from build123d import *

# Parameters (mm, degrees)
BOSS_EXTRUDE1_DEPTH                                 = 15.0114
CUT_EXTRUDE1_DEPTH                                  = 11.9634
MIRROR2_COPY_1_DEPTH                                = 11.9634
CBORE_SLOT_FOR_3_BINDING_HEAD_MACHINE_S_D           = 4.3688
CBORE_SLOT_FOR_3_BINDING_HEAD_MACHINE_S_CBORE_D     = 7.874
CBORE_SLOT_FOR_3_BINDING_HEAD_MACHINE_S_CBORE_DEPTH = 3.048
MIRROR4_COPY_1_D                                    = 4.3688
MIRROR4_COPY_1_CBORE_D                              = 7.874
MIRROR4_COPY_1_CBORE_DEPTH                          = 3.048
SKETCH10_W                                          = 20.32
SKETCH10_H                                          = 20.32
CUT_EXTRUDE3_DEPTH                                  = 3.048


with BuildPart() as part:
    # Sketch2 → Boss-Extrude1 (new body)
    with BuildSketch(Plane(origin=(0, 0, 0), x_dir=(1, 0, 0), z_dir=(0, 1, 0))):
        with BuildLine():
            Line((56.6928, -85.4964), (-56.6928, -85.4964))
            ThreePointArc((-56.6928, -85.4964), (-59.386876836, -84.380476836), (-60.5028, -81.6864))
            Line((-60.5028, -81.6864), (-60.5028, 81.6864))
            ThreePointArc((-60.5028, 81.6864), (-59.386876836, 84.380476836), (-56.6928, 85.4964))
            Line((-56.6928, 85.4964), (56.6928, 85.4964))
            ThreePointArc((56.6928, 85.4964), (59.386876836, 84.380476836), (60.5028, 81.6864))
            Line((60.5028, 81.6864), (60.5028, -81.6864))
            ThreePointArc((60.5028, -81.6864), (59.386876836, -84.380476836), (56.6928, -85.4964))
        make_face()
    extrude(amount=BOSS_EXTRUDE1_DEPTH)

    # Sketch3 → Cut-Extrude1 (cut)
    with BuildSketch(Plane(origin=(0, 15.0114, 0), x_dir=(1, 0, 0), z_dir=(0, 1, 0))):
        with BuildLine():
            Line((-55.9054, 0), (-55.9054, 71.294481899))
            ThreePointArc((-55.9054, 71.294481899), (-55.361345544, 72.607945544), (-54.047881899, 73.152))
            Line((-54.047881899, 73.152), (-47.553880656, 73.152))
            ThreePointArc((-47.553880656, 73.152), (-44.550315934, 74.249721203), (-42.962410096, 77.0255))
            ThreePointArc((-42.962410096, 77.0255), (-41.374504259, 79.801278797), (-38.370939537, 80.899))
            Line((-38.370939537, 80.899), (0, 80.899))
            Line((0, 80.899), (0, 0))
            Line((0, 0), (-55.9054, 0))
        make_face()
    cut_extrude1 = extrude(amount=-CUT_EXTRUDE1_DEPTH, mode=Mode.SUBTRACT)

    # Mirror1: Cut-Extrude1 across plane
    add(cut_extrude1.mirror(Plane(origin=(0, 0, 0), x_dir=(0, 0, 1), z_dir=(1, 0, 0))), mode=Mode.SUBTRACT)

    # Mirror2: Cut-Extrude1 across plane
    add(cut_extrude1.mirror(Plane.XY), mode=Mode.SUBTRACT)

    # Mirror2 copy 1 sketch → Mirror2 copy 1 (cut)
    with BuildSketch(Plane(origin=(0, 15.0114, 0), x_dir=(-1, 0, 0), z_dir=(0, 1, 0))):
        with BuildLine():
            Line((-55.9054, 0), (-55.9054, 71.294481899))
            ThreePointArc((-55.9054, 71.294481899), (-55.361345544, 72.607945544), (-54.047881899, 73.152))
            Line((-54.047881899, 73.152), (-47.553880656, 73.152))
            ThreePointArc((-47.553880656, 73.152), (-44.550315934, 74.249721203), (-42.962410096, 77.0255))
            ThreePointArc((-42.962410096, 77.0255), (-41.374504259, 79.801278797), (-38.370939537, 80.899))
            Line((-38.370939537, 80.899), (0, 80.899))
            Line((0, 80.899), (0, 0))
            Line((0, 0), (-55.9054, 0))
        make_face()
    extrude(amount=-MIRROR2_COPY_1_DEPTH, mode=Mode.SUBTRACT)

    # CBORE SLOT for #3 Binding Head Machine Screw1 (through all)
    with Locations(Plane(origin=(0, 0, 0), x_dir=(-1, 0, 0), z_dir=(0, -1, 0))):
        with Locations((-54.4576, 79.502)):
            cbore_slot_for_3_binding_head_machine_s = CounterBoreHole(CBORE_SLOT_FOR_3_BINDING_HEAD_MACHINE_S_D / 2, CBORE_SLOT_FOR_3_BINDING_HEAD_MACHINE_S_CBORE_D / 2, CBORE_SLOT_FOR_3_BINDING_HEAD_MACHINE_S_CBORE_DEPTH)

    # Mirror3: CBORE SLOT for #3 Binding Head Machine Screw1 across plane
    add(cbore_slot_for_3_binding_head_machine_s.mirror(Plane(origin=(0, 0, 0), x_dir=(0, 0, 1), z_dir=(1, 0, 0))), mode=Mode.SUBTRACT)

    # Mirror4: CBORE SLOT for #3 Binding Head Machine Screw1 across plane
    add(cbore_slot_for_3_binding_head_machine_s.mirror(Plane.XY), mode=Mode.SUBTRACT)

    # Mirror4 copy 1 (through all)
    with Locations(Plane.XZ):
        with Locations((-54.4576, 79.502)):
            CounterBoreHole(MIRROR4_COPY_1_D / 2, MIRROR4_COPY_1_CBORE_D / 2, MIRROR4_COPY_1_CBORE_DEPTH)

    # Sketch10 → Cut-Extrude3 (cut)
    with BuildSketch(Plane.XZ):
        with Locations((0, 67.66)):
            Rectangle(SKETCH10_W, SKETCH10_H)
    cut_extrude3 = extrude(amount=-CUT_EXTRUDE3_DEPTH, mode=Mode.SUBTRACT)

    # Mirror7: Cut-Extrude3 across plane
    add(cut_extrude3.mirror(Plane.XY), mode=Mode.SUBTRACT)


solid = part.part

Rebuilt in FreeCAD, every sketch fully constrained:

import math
import FreeCAD as App
import Part
import Sketcher
Q = App.Units.Quantity


def add_polygon(sketch, points):
    """Adds a closed chain of lines whose ends are joined by coincident constraints."""
    first, n = sketch.GeometryCount, len(points)
    for a, b in zip(points, points[1:] + points[:1]):
        sketch.addGeometry(Part.LineSegment(App.Vector(*a, 0), App.Vector(*b, 0)), False)
    for i in range(n):
        sketch.addConstraint(Sketcher.Constraint("Coincident", first + i, 2, first + (i + 1) % n, 1))

doc = App.newDocument("Part")
params = doc.addObject("Spreadsheet::Sheet", "Params")
for row, (alias, value) in enumerate([
    ("sketch1_radius", "0.15 in"),
    ("sketch1_width", "4.464 in"),
    ("sketch1_height", "6.432 in"),
    ("pad1_length", "0.591 in"),
    ("sketch2_width", "2.201 in"),
    ("sketch2_height", "3.185 in"),
    ("pocket1_length", "0.471 in"),
    ("sketch3_width", "2.201 in"),
    ("sketch3_height", "3.185 in"),
    ("pocket2_length", "0.471 in"),
    ("sketch4_diameter", "0.172 in"),
    ("hole_diameter", "0.172 in"),
    ("hole_cbore_diameter", "0.31 in"),
    ("hole_cbore_depth", "0.12 in"),
    ("sketch5_diameter", "0.172 in"),
    ("hole2_diameter", "0.172 in"),
    ("hole2_cbore_diameter", "0.31 in"),
    ("hole2_cbore_depth", "0.12 in"),
    ("sketch6_width", "0.8 in"),
    ("pocket3_length", "0.12 in"),
], start=1):
    params.set(f"A{row}", alias)
    params.set(f"B{row}", "=" + value)
    params.setAlias(f"B{row}", alias)

body = doc.addObject("PartDesign::Body", "Body")

# Sketch on XZ plane
sketch1 = body.newObject("Sketcher::SketchObject", "Sketch")
sketch1.AttachmentSupport = (doc.getObject("XZ_Plane"), [""])
sketch1.MapMode = "FlatFace"
sketch1.addGeometry([
    Part.LineSegment(App.Vector(-56.7, 85.5, 0), App.Vector(56.7, 85.5, 0)),  # 0
    Part.ArcOfCircle(Part.Circle(App.Vector(56.7, 81.7, 0), App.Vector(0, 0, 1), 3.8), math.radians(0), math.radians(90)),  # 1
    Part.LineSegment(App.Vector(60.5, 81.7, 0), App.Vector(60.5, -81.7, 0)),  # 2
    Part.ArcOfCircle(Part.Circle(App.Vector(56.7, -81.7, 0), App.Vector(0, 0, 1), 3.8), math.radians(-90), math.radians(0)),  # 3
    Part.LineSegment(App.Vector(56.7, -85.5, 0), App.Vector(-56.7, -85.5, 0)),  # 4
    Part.ArcOfCircle(Part.Circle(App.Vector(-56.7, -81.7, 0), App.Vector(0, 0, 1), 3.8), math.radians(-180), math.radians(-90)),  # 5
    Part.LineSegment(App.Vector(-60.5, -81.7, 0), App.Vector(-60.5, 81.7, 0)),  # 6
    Part.ArcOfCircle(Part.Circle(App.Vector(-56.7, 81.7, 0), App.Vector(0, 0, 1), 3.8), math.radians(90), math.radians(180)),  # 7
], False)
sketch1.addConstraint([
    Sketcher.Constraint("Tangent", 0, 2, 1, 2),
    Sketcher.Constraint("Tangent", 1, 1, 2, 1),
    Sketcher.Constraint("Tangent", 2, 2, 3, 2),
    Sketcher.Constraint("Tangent", 3, 1, 4, 1),
    Sketcher.Constraint("Tangent", 4, 2, 5, 2),
    Sketcher.Constraint("Tangent", 5, 1, 6, 1),
    Sketcher.Constraint("Tangent", 6, 2, 7, 2),
    Sketcher.Constraint("Tangent", 7, 1, 0, 1),
    Sketcher.Constraint("Horizontal", 0),
    Sketcher.Constraint("Vertical", 2),
    Sketcher.Constraint("Horizontal", 4),
    Sketcher.Constraint("Vertical", 6),
    Sketcher.Constraint("Equal", 1, 3),
    Sketcher.Constraint("Equal", 3, 5),
    Sketcher.Constraint("Equal", 5, 7),
    Sketcher.Constraint("Symmetric", 1, 3, 5, 3, -1, 1),
    Sketcher.Constraint("Radius", 1, Q("0.15 in")),
    Sketcher.Constraint("DistanceX", 0, 1, 0, 2, Q("4.464 in")),
    Sketcher.Constraint("DistanceY", 2, 2, 2, 1, Q("6.432 in")),
])
sketch1.setExpression("Constraints[16]", "Params.sketch1_radius")
sketch1.setExpression("Constraints[17]", "Params.sketch1_width")
sketch1.setExpression("Constraints[18]", "Params.sketch1_height")
pad1 = body.newObject("PartDesign::Pad", "Pad")
pad1.Profile = sketch1
pad1.setExpression("Length", "Params.pad1_length")
pad1.Reversed = True

# Sketch on XZ plane
sketch2 = body.newObject("Sketcher::SketchObject", "Sketch001")
sketch2.AttachmentSupport = (doc.getObject("XZ_Plane"), [""])
sketch2.MapMode = "FlatFace"
sketch2.AttachmentOffset = App.Placement(App.Vector(0, 0, -0.591 * 25.4), App.Rotation())
sketch2.addGeometry([
    Part.LineSegment(App.Vector(-55.9, -71.3, 0), App.Vector(-55.9, 0, 0)),  # 0
    Part.LineSegment(App.Vector(-55.9, 0, 0), App.Vector(0, 0, 0)),  # 1
    Part.LineSegment(App.Vector(0, 0, 0), App.Vector(0, -80.9, 0)),  # 2
    Part.LineSegment(App.Vector(0, -80.9, 0), App.Vector(-38.4, -80.9, 0)),  # 3
    Part.ArcOfCircle(Part.Circle(App.Vector(-38.4, -76.2, 0), App.Vector(0, 0, 1), 4.7), math.radians(-170), math.radians(-90)),  # 4
    Part.ArcOfCircle(Part.Circle(App.Vector(-47.6, -77.8, 0), App.Vector(0, 0, 1), 4.7), math.radians(10), math.radians(90)),  # 5
    Part.LineSegment(App.Vector(-47.6, -73.2, 0), App.Vector(-54, -73.2, 0)),  # 6
    Part.ArcOfCircle(Part.Circle(App.Vector(-54, -71.3, 0), App.Vector(0, 0, 1), 1.9), math.radians(-180), math.radians(-90)),  # 7
], False)
sketch2.addConstraint([
    Sketcher.Constraint("Coincident", 0, 2, 1, 1),
    Sketcher.Constraint("Coincident", 1, 2, 2, 1),
    Sketcher.Constraint("Coincident", 2, 2, 3, 1),
    Sketcher.Constraint("Tangent", 3, 2, 4, 2),
    Sketcher.Constraint("Tangent", 4, 1, 5, 1),
    Sketcher.Constraint("Tangent", 5, 2, 6, 1),
    Sketcher.Constraint("Tangent", 6, 2, 7, 2),
    Sketcher.Constraint("Tangent", 7, 1, 0, 1),
    Sketcher.Constraint("Vertical", 0),
    Sketcher.Constraint("Horizontal", 1),
    Sketcher.Constraint("Vertical", 2),
    Sketcher.Constraint("Horizontal", 3),
    Sketcher.Constraint("Horizontal", 6),
    Sketcher.Constraint("Coincident", 1, 2, -1, 1),
    Sketcher.Constraint("Equal", 4, 5),
    Sketcher.Constraint("DistanceX", 1, 1, 1, 2, Q("2.201 in")),
    Sketcher.Constraint("DistanceY", 2, 2, 2, 1, Q("3.185 in")),
    Sketcher.Constraint("DistanceY", 5, 2, -1, 1, Q("2.88 in")),
    Sketcher.Constraint("Radius", 4, 4.65801),
    Sketcher.Constraint("Radius", 7, 1.857518),
    Sketcher.Constraint("DistanceX", 6, 2, 6, 1, 6.494001),
])
sketch2.setExpression("Constraints[15]", "Params.sketch2_width")
sketch2.setExpression("Constraints[16]", "Params.sketch2_height")
pocket1 = body.newObject("PartDesign::Pocket", "Pocket")
pocket1.Profile = sketch2
pocket1.setExpression("Length", "Params.pocket1_length")
pocket1.Reversed = True
doc.recompute()

mirrored = body.newObject("PartDesign::Mirrored", "Mirrored")
mirrored.Originals = [pocket1]
mirrored.MirrorPlane = (doc.getObject("YZ_Plane"), [""])
body.Tip = mirrored
doc.recompute()

mirrored2 = body.newObject("PartDesign::Mirrored", "Mirrored001")
mirrored2.Originals = [pocket1]
mirrored2.MirrorPlane = (doc.getObject("XY_Plane"), [""])
body.Tip = mirrored2

# Sketch on XZ plane
sketch3 = body.newObject("Sketcher::SketchObject", "Sketch002")
sketch3.AttachmentSupport = (doc.getObject("XZ_Plane"), [""])
sketch3.MapMode = "FlatFace"
sketch3.AttachmentOffset = App.Placement(App.Vector(0, 0, -0.591 * 25.4), App.Rotation())
sketch3.addGeometry([
    Part.LineSegment(App.Vector(55.9, 71.3, 0), App.Vector(55.9, 0, 0)),  # 0
    Part.LineSegment(App.Vector(55.9, 0, 0), App.Vector(0, 0, 0)),  # 1
    Part.LineSegment(App.Vector(0, 0, 0), App.Vector(0, 80.9, 0)),  # 2
    Part.LineSegment(App.Vector(0, 80.9, 0), App.Vector(38.4, 80.9, 0)),  # 3
    Part.ArcOfCircle(Part.Circle(App.Vector(38.4, 76.2, 0), App.Vector(0, 0, 1), 4.7), math.radians(10), math.radians(90)),  # 4
    Part.ArcOfCircle(Part.Circle(App.Vector(47.6, 77.8, 0), App.Vector(0, 0, 1), 4.7), math.radians(-170), math.radians(-90)),  # 5
    Part.LineSegment(App.Vector(47.6, 73.2, 0), App.Vector(54, 73.2, 0)),  # 6
    Part.ArcOfCircle(Part.Circle(App.Vector(54, 71.3, 0), App.Vector(0, 0, 1), 1.9), math.radians(0), math.radians(90)),  # 7
], False)
sketch3.addConstraint([
    Sketcher.Constraint("Coincident", 0, 2, 1, 1),
    Sketcher.Constraint("Coincident", 1, 2, 2, 1),
    Sketcher.Constraint("Coincident", 2, 2, 3, 1),
    Sketcher.Constraint("Tangent", 3, 2, 4, 2),
    Sketcher.Constraint("Tangent", 4, 1, 5, 1),
    Sketcher.Constraint("Tangent", 5, 2, 6, 1),
    Sketcher.Constraint("Tangent", 6, 2, 7, 2),
    Sketcher.Constraint("Tangent", 7, 1, 0, 1),
    Sketcher.Constraint("Vertical", 0),
    Sketcher.Constraint("Horizontal", 1),
    Sketcher.Constraint("Vertical", 2),
    Sketcher.Constraint("Horizontal", 3),
    Sketcher.Constraint("Horizontal", 6),
    Sketcher.Constraint("Coincident", 1, 2, -1, 1),
    Sketcher.Constraint("Equal", 4, 5),
    Sketcher.Constraint("DistanceX", 1, 2, 1, 1, Q("2.201 in")),
    Sketcher.Constraint("DistanceY", 2, 1, 2, 2, Q("3.185 in")),
    Sketcher.Constraint("DistanceY", -1, 1, 5, 2, Q("2.88 in")),
    Sketcher.Constraint("Radius", 4, 4.65801),
    Sketcher.Constraint("Radius", 7, 1.857518),
    Sketcher.Constraint("DistanceX", 6, 1, 6, 2, 6.494001),
])
sketch3.setExpression("Constraints[15]", "Params.sketch3_width")
sketch3.setExpression("Constraints[16]", "Params.sketch3_height")
pocket2 = body.newObject("PartDesign::Pocket", "Pocket001")
pocket2.Profile = sketch3
pocket2.setExpression("Length", "Params.pocket2_length")
pocket2.Reversed = True

# Sketch on XZ plane
sketch4 = body.newObject("Sketcher::SketchObject", "Sketch003")
sketch4.AttachmentSupport = (doc.getObject("XZ_Plane"), [""])
sketch4.MapMode = "FlatFace"
sketch4.addGeometry(Part.Circle(App.Vector(54.5, -79.5, 0), App.Vector(0, 0, 1), 2.2), False)
sketch4.addConstraint([
    Sketcher.Constraint("Diameter", 0, Q("0.172 in")),
    Sketcher.Constraint("DistanceY", 0, 3, -1, 1, Q("3.13 in")),
    Sketcher.Constraint("DistanceX", -1, 1, 0, 3, Q("2.144 in")),
])
sketch4.setExpression("Constraints[0]", "Params.sketch4_diameter")
doc.recompute()
hole = body.newObject("PartDesign::Hole", "Hole")
hole.Profile = sketch4
hole.ThreadType = "None"
hole.setExpression("Diameter", "Params.hole_diameter")
hole.DepthType = "ThroughAll"
hole.HoleCutType = "Counterbore"
hole.setExpression("HoleCutDiameter", "Params.hole_cbore_diameter")
hole.setExpression("HoleCutDepth", "Params.hole_cbore_depth")
doc.recompute()

mirrored3 = body.newObject("PartDesign::Mirrored", "Mirrored002")
mirrored3.Originals = [hole]
mirrored3.MirrorPlane = (doc.getObject("YZ_Plane"), [""])
body.Tip = mirrored3
doc.recompute()

mirrored4 = body.newObject("PartDesign::Mirrored", "Mirrored003")
mirrored4.Originals = [hole]
mirrored4.MirrorPlane = (doc.getObject("XY_Plane"), [""])
body.Tip = mirrored4

# Sketch on XZ plane
sketch5 = body.newObject("Sketcher::SketchObject", "Sketch004")
sketch5.AttachmentSupport = (doc.getObject("XZ_Plane"), [""])
sketch5.MapMode = "FlatFace"
sketch5.addGeometry(Part.Circle(App.Vector(-54.5, 79.5, 0), App.Vector(0, 0, 1), 2.2), False)
sketch5.addConstraint([
    Sketcher.Constraint("Diameter", 0, Q("0.172 in")),
    Sketcher.Constraint("DistanceY", -1, 1, 0, 3, Q("3.13 in")),
    Sketcher.Constraint("DistanceX", 0, 3, -1, 1, Q("2.144 in")),
])
sketch5.setExpression("Constraints[0]", "Params.sketch5_diameter")
doc.recompute()
hole2 = body.newObject("PartDesign::Hole", "Hole001")
hole2.Profile = sketch5
hole2.ThreadType = "None"
hole2.setExpression("Diameter", "Params.hole2_diameter")
hole2.DepthType = "ThroughAll"
hole2.HoleCutType = "Counterbore"
hole2.setExpression("HoleCutDiameter", "Params.hole2_cbore_diameter")
hole2.setExpression("HoleCutDepth", "Params.hole2_cbore_depth")

# Sketch on XZ plane
sketch6 = body.newObject("Sketcher::SketchObject", "Sketch005")
sketch6.AttachmentSupport = (doc.getObject("XZ_Plane"), [""])
sketch6.MapMode = "FlatFace"
add_polygon(sketch6, [(-10, 78), (-10, 58), (10, 58), (10, 78)])  # lines 0-3
sketch6.addConstraint([
    Sketcher.Constraint("Vertical", 0),
    Sketcher.Constraint("Horizontal", 1),
    Sketcher.Constraint("Vertical", 2),
    Sketcher.Constraint("Horizontal", 3),
    Sketcher.Constraint("Equal", 3, 0),
    Sketcher.Constraint("DistanceX", 1, 1, 1, 2, Q("0.8 in")),
    Sketcher.Constraint("DistanceX", 0, 2, -1, 1, Q("0.4 in")),
    Sketcher.Constraint("DistanceY", -1, 1, 0, 2, 57.5),
])
sketch6.setExpression("Constraints[9]", "Params.sketch6_width")
pocket3 = body.newObject("PartDesign::Pocket", "Pocket002")
pocket3.Profile = sketch6
pocket3.setExpression("Length", "Params.pocket3_length")
doc.recompute()

mirrored5 = body.newObject("PartDesign::Mirrored", "Mirrored004")
mirrored5.Originals = [pocket3]
mirrored5.MirrorPlane = (doc.getObject("XY_Plane"), [""])
body.Tip = mirrored5

doc.recompute()
